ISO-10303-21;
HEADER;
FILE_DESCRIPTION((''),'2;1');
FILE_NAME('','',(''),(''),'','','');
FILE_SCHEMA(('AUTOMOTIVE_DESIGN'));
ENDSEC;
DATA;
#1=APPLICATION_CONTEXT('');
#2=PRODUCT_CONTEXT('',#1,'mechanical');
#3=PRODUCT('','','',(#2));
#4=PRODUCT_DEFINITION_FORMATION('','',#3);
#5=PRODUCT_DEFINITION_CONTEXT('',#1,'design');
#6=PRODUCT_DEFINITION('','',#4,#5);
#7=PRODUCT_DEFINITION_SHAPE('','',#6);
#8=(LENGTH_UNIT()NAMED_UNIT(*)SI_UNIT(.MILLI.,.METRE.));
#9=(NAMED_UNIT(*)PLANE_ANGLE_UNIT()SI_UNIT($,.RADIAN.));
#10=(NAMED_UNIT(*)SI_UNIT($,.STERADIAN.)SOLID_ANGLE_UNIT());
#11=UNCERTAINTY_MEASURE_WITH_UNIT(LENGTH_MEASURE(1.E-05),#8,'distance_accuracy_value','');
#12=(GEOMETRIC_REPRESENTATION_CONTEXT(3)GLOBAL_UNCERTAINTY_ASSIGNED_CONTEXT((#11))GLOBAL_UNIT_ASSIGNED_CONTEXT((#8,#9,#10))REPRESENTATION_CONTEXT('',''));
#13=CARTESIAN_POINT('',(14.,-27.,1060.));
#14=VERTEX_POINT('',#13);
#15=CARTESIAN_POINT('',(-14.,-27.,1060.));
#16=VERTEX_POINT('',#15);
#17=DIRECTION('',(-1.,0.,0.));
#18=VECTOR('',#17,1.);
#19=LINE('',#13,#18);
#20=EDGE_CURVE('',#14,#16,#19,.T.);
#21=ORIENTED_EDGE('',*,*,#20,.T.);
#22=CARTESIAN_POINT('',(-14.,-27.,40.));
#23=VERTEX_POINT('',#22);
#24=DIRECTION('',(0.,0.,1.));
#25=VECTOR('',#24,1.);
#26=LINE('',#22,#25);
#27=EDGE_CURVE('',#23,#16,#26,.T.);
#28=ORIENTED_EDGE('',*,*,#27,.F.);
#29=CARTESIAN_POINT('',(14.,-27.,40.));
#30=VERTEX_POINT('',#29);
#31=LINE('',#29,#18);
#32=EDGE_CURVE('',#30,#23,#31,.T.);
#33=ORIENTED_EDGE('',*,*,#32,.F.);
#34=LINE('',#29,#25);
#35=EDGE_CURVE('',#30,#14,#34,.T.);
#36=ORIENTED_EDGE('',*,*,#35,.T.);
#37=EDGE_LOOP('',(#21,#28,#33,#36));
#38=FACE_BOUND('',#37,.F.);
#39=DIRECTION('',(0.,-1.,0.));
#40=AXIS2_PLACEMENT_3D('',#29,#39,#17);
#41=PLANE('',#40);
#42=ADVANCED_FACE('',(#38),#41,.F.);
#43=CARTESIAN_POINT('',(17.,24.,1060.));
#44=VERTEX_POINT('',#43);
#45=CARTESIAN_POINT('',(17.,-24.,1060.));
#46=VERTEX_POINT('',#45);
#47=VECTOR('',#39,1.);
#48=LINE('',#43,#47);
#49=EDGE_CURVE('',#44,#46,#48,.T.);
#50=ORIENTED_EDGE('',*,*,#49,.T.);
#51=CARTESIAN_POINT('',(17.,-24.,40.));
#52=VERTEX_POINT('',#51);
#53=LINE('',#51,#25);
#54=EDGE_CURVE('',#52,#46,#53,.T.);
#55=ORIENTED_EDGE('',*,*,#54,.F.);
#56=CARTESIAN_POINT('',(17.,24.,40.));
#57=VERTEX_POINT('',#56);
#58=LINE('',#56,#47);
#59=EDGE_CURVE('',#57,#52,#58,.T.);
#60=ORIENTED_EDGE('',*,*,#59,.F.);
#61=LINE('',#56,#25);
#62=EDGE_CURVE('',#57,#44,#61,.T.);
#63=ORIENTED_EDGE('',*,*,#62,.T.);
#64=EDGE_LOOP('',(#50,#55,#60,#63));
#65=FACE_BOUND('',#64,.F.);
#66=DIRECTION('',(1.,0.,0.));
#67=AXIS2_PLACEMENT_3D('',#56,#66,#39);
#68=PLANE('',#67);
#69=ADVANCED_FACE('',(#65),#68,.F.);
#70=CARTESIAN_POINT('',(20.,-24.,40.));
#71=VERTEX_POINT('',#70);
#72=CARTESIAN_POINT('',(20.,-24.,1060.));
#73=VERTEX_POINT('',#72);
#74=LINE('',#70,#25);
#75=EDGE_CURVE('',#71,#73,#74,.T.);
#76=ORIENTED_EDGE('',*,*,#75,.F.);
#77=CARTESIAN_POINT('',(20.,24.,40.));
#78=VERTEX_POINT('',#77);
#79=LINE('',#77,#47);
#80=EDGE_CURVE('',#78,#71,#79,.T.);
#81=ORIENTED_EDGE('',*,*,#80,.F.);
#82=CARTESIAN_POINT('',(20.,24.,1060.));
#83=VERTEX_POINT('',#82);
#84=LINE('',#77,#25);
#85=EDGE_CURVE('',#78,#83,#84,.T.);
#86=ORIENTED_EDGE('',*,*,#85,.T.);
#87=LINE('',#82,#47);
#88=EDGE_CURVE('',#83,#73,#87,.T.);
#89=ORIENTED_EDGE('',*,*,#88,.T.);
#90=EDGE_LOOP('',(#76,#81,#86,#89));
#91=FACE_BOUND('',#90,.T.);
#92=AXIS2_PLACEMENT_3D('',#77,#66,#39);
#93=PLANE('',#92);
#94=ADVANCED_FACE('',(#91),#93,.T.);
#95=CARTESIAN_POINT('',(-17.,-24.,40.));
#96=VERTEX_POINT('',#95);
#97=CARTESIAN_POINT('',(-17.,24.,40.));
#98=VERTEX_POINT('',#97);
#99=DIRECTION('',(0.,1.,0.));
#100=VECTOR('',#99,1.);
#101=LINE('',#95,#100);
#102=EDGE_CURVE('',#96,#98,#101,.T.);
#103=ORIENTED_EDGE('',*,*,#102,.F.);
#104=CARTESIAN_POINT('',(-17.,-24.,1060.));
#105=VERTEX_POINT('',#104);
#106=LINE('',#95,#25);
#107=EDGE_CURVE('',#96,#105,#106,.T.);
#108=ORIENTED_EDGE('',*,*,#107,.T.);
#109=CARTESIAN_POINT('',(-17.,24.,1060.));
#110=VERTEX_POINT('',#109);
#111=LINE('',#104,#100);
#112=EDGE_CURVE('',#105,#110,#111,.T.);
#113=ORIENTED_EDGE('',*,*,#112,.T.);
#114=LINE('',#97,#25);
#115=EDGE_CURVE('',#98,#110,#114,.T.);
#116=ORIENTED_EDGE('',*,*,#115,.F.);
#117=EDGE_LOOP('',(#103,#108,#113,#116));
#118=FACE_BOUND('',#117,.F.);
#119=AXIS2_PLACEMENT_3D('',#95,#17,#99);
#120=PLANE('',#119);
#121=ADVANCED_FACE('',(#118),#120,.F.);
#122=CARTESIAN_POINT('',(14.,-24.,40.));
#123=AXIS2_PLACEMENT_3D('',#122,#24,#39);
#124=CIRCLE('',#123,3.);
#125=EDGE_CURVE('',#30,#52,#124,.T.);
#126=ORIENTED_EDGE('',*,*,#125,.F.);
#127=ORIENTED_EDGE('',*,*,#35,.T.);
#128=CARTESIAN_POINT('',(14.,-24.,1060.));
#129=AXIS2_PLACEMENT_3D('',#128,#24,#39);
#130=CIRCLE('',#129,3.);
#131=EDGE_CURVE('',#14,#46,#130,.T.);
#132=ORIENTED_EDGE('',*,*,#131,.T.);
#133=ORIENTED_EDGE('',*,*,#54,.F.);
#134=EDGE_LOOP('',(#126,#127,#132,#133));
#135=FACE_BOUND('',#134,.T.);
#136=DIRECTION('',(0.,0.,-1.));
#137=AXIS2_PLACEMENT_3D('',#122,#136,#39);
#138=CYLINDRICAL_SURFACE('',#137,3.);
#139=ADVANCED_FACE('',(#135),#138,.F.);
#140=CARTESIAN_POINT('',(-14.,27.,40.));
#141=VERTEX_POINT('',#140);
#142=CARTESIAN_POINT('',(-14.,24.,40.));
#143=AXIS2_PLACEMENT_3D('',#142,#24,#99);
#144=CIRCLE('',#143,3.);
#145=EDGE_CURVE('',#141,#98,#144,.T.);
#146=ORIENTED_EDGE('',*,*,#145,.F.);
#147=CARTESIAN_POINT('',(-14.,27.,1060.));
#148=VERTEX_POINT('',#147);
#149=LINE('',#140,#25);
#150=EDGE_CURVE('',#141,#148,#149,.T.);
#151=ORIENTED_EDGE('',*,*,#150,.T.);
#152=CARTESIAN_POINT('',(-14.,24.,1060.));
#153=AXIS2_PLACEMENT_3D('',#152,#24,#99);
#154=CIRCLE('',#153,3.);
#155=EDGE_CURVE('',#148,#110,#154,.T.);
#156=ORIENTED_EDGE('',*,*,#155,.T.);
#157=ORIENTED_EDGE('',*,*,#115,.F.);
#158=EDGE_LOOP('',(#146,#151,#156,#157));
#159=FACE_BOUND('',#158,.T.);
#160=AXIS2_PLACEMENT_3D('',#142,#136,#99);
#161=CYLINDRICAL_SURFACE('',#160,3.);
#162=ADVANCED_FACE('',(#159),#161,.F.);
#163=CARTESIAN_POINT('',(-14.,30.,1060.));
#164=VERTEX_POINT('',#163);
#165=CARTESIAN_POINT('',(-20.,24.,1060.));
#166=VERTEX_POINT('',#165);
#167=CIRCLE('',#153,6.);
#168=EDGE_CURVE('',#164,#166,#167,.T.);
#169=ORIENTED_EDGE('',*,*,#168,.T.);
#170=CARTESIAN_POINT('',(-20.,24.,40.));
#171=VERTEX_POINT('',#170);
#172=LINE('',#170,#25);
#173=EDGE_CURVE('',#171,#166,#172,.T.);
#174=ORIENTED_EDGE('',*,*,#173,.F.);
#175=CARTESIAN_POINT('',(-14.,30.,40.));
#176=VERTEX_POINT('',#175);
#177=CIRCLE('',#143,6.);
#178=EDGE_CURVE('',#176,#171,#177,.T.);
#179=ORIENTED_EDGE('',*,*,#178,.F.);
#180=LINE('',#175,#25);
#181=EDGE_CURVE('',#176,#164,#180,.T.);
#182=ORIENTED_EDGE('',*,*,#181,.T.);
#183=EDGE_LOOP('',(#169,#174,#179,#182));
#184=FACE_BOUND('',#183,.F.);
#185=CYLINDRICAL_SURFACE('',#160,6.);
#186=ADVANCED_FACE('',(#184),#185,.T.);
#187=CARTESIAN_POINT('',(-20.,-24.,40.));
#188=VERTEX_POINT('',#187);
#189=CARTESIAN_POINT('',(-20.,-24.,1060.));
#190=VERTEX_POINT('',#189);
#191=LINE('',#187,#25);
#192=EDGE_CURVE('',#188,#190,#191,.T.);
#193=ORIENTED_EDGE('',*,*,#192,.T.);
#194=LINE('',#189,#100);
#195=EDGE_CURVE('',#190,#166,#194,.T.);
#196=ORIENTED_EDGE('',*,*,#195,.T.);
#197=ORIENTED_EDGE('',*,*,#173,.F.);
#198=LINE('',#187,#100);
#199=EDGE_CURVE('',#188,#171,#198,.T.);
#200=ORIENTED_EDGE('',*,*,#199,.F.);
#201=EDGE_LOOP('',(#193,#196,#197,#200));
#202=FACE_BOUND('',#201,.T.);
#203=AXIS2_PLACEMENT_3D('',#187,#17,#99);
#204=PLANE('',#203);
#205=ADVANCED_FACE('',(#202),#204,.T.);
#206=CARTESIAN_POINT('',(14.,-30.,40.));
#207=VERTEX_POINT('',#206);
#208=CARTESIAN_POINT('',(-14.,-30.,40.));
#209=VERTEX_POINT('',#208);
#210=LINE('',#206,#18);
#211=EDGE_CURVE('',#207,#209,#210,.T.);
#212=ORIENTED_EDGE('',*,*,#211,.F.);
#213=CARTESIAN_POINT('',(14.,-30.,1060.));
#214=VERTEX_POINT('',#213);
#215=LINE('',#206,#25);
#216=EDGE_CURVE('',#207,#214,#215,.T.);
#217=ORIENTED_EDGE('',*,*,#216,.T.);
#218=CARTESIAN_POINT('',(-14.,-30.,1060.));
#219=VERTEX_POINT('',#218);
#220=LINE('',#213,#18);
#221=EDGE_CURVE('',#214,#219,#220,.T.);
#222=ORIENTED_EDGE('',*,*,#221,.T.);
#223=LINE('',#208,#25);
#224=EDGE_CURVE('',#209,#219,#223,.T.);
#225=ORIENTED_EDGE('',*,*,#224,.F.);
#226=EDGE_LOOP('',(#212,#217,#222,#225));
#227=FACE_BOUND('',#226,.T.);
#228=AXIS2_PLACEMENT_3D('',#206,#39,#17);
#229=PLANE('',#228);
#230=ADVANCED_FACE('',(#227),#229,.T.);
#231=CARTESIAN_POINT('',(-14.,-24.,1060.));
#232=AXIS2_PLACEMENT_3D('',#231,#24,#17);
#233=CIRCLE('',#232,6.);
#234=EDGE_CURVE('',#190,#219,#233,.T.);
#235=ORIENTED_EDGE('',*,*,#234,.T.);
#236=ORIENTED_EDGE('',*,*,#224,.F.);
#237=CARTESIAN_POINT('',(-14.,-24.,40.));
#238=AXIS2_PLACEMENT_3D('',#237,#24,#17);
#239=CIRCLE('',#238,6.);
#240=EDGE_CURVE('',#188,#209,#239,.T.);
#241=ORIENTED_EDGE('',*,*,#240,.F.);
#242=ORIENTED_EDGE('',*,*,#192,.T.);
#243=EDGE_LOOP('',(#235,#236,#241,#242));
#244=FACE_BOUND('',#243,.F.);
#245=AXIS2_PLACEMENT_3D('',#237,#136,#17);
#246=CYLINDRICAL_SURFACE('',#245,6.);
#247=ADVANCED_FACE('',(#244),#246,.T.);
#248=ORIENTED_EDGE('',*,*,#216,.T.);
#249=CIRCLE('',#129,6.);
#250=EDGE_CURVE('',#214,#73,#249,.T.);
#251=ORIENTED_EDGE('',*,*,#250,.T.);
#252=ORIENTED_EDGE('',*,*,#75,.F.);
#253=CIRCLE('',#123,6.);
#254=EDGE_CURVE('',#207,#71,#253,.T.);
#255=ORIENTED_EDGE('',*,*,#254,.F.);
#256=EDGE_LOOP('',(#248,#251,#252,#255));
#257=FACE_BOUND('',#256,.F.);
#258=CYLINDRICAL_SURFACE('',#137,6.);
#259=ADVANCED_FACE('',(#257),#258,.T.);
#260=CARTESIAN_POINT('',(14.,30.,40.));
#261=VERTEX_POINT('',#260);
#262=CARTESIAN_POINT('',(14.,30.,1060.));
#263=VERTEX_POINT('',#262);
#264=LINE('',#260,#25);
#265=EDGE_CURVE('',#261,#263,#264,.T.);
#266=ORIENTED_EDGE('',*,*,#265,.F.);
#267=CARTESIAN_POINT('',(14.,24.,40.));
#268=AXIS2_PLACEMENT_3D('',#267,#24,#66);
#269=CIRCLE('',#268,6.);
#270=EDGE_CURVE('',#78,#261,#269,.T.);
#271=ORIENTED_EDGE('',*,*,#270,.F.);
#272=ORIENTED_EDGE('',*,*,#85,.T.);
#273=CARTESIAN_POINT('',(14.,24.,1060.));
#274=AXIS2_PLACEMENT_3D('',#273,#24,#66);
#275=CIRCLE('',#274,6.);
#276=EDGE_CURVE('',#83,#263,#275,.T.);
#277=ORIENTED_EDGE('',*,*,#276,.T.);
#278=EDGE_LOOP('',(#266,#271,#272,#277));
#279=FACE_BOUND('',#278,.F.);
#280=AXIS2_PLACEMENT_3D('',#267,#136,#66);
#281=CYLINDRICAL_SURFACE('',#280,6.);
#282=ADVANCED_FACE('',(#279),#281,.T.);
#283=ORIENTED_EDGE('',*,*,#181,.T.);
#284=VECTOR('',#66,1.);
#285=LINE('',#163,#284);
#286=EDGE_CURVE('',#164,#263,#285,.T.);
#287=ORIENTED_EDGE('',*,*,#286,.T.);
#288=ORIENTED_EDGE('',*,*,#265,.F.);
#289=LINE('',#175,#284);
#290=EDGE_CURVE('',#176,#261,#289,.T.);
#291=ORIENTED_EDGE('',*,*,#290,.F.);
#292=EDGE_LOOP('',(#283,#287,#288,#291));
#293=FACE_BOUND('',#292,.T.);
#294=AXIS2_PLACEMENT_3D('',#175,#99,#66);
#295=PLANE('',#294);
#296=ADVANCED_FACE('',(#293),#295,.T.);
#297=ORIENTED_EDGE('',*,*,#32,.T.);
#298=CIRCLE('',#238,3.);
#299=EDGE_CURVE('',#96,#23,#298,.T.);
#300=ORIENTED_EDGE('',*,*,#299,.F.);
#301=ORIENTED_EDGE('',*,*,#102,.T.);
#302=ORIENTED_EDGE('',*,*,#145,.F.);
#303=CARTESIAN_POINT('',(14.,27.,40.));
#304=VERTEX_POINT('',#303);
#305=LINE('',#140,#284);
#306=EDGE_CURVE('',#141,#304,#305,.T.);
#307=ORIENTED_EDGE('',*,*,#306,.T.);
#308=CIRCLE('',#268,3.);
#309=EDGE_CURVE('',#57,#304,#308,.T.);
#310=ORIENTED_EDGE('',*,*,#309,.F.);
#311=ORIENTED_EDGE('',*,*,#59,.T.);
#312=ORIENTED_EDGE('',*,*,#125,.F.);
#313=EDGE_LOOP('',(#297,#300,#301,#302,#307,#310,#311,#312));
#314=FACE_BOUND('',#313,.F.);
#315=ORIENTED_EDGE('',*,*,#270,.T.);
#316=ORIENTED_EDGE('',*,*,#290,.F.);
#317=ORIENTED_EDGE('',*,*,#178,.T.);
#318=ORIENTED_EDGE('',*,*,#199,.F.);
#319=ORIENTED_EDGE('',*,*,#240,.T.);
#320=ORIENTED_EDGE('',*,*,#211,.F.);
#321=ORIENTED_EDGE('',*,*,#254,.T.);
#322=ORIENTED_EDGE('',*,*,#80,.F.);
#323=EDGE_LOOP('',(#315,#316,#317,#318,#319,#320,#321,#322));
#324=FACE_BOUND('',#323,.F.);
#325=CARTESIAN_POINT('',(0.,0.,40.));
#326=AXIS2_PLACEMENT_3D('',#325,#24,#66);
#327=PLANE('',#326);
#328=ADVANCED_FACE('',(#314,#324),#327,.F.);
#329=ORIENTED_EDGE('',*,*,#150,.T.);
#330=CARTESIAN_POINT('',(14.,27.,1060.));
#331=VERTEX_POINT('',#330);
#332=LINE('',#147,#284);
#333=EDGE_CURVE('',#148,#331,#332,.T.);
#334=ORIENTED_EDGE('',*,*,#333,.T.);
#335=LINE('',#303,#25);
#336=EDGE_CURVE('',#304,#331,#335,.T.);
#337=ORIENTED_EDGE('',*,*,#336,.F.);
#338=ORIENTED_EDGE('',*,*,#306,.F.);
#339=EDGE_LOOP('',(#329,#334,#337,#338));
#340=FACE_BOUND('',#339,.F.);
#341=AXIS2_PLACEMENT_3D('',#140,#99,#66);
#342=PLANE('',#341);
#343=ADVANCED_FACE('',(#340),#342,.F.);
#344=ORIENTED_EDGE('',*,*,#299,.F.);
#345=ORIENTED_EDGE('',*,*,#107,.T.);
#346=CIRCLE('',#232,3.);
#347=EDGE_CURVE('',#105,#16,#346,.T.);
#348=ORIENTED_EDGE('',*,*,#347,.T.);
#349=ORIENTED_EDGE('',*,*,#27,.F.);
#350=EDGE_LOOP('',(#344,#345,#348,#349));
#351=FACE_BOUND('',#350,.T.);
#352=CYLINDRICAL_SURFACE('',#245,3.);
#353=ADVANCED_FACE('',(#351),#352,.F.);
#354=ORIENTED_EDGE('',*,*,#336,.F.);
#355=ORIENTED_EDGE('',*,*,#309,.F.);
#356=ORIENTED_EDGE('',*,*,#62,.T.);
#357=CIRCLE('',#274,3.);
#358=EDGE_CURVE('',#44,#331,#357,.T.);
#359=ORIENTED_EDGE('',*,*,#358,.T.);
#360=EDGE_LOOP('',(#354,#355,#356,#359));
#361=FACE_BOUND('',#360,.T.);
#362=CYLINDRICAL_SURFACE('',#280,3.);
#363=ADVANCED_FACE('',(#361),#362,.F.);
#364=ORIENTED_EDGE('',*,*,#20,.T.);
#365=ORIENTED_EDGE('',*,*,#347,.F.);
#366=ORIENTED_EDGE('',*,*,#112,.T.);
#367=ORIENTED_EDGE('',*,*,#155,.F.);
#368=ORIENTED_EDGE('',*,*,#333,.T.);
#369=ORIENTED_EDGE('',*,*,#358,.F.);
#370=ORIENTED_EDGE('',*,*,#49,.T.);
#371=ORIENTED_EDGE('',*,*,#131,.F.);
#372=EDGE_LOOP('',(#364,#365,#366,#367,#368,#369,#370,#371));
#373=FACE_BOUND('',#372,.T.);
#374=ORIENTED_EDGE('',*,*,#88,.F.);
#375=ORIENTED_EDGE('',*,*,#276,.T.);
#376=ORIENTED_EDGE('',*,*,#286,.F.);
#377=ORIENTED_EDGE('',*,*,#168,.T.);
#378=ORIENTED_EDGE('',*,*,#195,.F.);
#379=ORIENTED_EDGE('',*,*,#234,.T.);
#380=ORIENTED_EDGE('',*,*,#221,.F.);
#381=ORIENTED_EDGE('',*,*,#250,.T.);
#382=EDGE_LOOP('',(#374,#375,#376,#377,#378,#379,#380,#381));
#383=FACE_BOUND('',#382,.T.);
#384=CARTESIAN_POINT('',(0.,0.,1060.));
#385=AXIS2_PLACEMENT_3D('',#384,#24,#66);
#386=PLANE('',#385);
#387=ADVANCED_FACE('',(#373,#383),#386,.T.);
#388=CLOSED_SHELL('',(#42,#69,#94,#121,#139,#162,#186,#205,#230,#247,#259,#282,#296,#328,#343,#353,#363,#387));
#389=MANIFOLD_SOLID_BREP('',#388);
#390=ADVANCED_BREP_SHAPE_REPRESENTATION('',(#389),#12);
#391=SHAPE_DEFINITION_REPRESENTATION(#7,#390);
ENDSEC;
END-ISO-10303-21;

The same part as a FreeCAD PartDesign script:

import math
import FreeCAD as App
import Part
import Sketcher
from FreeCAD import Vector
Q = App.Units.Quantity

doc = App.newDocument("Part")
body = doc.addObject("PartDesign::Body", "Body")

# Sketch on XY plane
sketch1 = body.newObject("Sketcher::SketchObject", "Sketch")
sketch1.AttachmentSupport = (doc.getObject("XY_Plane"), [""])
sketch1.MapMode = "FlatFace"
sketch1.AttachmentOffset = App.Placement(Vector(0, 0, 40), App.Rotation())
sketch1.addGeometry(Part.LineSegment(Vector(-20, 24, 0), Vector(-20, -24, 0)), False)
sketch1.addGeometry(Part.ArcOfCircle(Part.Circle(Vector(-14, -24, 0), Vector(0, 0, 1), 6), math.radians(180), math.radians(270)), False)
sketch1.addGeometry(Part.LineSegment(Vector(-14, -30, 0), Vector(14, -30, 0)), False)
sketch1.addGeometry(Part.ArcOfCircle(Part.Circle(Vector(14, -24, 0), Vector(0, 0, 1), 6), math.radians(-90), math.radians(0)), False)
sketch1.addGeometry(Part.LineSegment(Vector(20, -24, 0), Vector(20, 24, 0)), False)
sketch1.addGeometry(Part.ArcOfCircle(Part.Circle(Vector(14, 24, 0), Vector(0, 0, 1), 6), math.radians(0), math.radians(90)), False)
sketch1.addGeometry(Part.LineSegment(Vector(14, 30, 0), Vector(-14, 30, 0)), False)
sketch1.addGeometry(Part.ArcOfCircle(Part.Circle(Vector(-14, 24, 0), Vector(0, 0, 1), 6), math.radians(90), math.radians(180)), False)
sketch1.addGeometry(Part.ArcOfCircle(Part.Circle(Vector(-14, 24, 0), Vector(0, 0, 1), 3), math.radians(90), math.radians(180)), False)
sketch1.addGeometry(Part.LineSegment(Vector(-14, 27, 0), Vector(14, 27, 0)), False)
sketch1.addGeometry(Part.ArcOfCircle(Part.Circle(Vector(14, 24, 0), Vector(0, 0, 1), 3), math.radians(0), math.radians(90)), False)
sketch1.addGeometry(Part.LineSegment(Vector(17, 24, 0), Vector(17, -24, 0)), False)
sketch1.addGeometry(Part.ArcOfCircle(Part.Circle(Vector(14, -24, 0), Vector(0, 0, 1), 3), math.radians(-90), math.radians(0)), False)
sketch1.addGeometry(Part.LineSegment(Vector(14, -27, 0), Vector(-14, -27, 0)), False)
sketch1.addGeometry(Part.ArcOfCircle(Part.Circle(Vector(-14, -24, 0), Vector(0, 0, 1), 3), math.radians(180), math.radians(270)), False)
sketch1.addGeometry(Part.LineSegment(Vector(-17, -24, 0), Vector(-17, 24, 0)), False)
sketch1.addConstraint(Sketcher.Constraint("Tangent", 0, 2, 1, 1))
sketch1.addConstraint(Sketcher.Constraint("Tangent", 1, 2, 2, 1))
sketch1.addConstraint(Sketcher.Constraint("Tangent", 2, 2, 3, 1))
sketch1.addConstraint(Sketcher.Constraint("Tangent", 3, 2, 4, 1))
sketch1.addConstraint(Sketcher.Constraint("Tangent", 4, 2, 5, 1))
sketch1.addConstraint(Sketcher.Constraint("Tangent", 5, 2, 6, 1))
sketch1.addConstraint(Sketcher.Constraint("Tangent", 6, 2, 7, 1))
sketch1.addConstraint(Sketcher.Constraint("Tangent", 7, 2, 0, 1))
sketch1.addConstraint(Sketcher.Constraint("Tangent", 8, 1, 9, 1))
sketch1.addConstraint(Sketcher.Constraint("Tangent", 9, 2, 10, 2))
sketch1.addConstraint(Sketcher.Constraint("Tangent", 10, 1, 11, 1))
sketch1.addConstraint(Sketcher.Constraint("Tangent", 11, 2, 12, 2))
sketch1.addConstraint(Sketcher.Constraint("Tangent", 12, 1, 13, 1))
sketch1.addConstraint(Sketcher.Constraint("Tangent", 13, 2, 14, 2))
sketch1.addConstraint(Sketcher.Constraint("Tangent", 14, 1, 15, 1))
sketch1.addConstraint(Sketcher.Constraint("Tangent", 15, 2, 8, 2))
sketch1.addConstraint(Sketcher.Constraint("Vertical", 0))
sketch1.addConstraint(Sketcher.Constraint("Horizontal", 2))
sketch1.addConstraint(Sketcher.Constraint("Vertical", 4))
sketch1.addConstraint(Sketcher.Constraint("Horizontal", 6))
sketch1.addConstraint(Sketcher.Constraint("Horizontal", 9))
sketch1.addConstraint(Sketcher.Constraint("Vertical", 11))
sketch1.addConstraint(Sketcher.Constraint("Horizontal", 13))
sketch1.addConstraint(Sketcher.Constraint("Vertical", 15))
sketch1.addConstraint(Sketcher.Constraint("Coincident", 8, 3, 7, 3))
sketch1.addConstraint(Sketcher.Constraint("Coincident", 10, 3, 5, 3))
sketch1.addConstraint(Sketcher.Constraint("Coincident", 12, 3, 3, 3))
sketch1.addConstraint(Sketcher.Constraint("Equal", 1, 3))
sketch1.addConstraint(Sketcher.Constraint("Equal", 3, 5))
sketch1.addConstraint(Sketcher.Constraint("Equal", 5, 7))
sketch1.addConstraint(Sketcher.Constraint("Equal", 12, 14))
sketch1.addConstraint(Sketcher.Constraint("Symmetric", 1, 3, 5, 3, -1, 1))
sketch1.addConstraint(Sketcher.Constraint("Radius", 1, Q("6 mm")))
sketch1.addConstraint(Sketcher.Constraint("Radius", 8, Q("3 mm")))
sketch1.addConstraint(Sketcher.Constraint("DistanceX", 0, 2, -1, 1, Q("20 mm")))
sketch1.addConstraint(Sketcher.Constraint("DistanceY", 1, 2, -1, 1, Q("30 mm")))
pad1 = body.newObject("PartDesign::Pad", "Pad")
pad1.Profile = sketch1
pad1.Length = 1020

doc.recompute()
